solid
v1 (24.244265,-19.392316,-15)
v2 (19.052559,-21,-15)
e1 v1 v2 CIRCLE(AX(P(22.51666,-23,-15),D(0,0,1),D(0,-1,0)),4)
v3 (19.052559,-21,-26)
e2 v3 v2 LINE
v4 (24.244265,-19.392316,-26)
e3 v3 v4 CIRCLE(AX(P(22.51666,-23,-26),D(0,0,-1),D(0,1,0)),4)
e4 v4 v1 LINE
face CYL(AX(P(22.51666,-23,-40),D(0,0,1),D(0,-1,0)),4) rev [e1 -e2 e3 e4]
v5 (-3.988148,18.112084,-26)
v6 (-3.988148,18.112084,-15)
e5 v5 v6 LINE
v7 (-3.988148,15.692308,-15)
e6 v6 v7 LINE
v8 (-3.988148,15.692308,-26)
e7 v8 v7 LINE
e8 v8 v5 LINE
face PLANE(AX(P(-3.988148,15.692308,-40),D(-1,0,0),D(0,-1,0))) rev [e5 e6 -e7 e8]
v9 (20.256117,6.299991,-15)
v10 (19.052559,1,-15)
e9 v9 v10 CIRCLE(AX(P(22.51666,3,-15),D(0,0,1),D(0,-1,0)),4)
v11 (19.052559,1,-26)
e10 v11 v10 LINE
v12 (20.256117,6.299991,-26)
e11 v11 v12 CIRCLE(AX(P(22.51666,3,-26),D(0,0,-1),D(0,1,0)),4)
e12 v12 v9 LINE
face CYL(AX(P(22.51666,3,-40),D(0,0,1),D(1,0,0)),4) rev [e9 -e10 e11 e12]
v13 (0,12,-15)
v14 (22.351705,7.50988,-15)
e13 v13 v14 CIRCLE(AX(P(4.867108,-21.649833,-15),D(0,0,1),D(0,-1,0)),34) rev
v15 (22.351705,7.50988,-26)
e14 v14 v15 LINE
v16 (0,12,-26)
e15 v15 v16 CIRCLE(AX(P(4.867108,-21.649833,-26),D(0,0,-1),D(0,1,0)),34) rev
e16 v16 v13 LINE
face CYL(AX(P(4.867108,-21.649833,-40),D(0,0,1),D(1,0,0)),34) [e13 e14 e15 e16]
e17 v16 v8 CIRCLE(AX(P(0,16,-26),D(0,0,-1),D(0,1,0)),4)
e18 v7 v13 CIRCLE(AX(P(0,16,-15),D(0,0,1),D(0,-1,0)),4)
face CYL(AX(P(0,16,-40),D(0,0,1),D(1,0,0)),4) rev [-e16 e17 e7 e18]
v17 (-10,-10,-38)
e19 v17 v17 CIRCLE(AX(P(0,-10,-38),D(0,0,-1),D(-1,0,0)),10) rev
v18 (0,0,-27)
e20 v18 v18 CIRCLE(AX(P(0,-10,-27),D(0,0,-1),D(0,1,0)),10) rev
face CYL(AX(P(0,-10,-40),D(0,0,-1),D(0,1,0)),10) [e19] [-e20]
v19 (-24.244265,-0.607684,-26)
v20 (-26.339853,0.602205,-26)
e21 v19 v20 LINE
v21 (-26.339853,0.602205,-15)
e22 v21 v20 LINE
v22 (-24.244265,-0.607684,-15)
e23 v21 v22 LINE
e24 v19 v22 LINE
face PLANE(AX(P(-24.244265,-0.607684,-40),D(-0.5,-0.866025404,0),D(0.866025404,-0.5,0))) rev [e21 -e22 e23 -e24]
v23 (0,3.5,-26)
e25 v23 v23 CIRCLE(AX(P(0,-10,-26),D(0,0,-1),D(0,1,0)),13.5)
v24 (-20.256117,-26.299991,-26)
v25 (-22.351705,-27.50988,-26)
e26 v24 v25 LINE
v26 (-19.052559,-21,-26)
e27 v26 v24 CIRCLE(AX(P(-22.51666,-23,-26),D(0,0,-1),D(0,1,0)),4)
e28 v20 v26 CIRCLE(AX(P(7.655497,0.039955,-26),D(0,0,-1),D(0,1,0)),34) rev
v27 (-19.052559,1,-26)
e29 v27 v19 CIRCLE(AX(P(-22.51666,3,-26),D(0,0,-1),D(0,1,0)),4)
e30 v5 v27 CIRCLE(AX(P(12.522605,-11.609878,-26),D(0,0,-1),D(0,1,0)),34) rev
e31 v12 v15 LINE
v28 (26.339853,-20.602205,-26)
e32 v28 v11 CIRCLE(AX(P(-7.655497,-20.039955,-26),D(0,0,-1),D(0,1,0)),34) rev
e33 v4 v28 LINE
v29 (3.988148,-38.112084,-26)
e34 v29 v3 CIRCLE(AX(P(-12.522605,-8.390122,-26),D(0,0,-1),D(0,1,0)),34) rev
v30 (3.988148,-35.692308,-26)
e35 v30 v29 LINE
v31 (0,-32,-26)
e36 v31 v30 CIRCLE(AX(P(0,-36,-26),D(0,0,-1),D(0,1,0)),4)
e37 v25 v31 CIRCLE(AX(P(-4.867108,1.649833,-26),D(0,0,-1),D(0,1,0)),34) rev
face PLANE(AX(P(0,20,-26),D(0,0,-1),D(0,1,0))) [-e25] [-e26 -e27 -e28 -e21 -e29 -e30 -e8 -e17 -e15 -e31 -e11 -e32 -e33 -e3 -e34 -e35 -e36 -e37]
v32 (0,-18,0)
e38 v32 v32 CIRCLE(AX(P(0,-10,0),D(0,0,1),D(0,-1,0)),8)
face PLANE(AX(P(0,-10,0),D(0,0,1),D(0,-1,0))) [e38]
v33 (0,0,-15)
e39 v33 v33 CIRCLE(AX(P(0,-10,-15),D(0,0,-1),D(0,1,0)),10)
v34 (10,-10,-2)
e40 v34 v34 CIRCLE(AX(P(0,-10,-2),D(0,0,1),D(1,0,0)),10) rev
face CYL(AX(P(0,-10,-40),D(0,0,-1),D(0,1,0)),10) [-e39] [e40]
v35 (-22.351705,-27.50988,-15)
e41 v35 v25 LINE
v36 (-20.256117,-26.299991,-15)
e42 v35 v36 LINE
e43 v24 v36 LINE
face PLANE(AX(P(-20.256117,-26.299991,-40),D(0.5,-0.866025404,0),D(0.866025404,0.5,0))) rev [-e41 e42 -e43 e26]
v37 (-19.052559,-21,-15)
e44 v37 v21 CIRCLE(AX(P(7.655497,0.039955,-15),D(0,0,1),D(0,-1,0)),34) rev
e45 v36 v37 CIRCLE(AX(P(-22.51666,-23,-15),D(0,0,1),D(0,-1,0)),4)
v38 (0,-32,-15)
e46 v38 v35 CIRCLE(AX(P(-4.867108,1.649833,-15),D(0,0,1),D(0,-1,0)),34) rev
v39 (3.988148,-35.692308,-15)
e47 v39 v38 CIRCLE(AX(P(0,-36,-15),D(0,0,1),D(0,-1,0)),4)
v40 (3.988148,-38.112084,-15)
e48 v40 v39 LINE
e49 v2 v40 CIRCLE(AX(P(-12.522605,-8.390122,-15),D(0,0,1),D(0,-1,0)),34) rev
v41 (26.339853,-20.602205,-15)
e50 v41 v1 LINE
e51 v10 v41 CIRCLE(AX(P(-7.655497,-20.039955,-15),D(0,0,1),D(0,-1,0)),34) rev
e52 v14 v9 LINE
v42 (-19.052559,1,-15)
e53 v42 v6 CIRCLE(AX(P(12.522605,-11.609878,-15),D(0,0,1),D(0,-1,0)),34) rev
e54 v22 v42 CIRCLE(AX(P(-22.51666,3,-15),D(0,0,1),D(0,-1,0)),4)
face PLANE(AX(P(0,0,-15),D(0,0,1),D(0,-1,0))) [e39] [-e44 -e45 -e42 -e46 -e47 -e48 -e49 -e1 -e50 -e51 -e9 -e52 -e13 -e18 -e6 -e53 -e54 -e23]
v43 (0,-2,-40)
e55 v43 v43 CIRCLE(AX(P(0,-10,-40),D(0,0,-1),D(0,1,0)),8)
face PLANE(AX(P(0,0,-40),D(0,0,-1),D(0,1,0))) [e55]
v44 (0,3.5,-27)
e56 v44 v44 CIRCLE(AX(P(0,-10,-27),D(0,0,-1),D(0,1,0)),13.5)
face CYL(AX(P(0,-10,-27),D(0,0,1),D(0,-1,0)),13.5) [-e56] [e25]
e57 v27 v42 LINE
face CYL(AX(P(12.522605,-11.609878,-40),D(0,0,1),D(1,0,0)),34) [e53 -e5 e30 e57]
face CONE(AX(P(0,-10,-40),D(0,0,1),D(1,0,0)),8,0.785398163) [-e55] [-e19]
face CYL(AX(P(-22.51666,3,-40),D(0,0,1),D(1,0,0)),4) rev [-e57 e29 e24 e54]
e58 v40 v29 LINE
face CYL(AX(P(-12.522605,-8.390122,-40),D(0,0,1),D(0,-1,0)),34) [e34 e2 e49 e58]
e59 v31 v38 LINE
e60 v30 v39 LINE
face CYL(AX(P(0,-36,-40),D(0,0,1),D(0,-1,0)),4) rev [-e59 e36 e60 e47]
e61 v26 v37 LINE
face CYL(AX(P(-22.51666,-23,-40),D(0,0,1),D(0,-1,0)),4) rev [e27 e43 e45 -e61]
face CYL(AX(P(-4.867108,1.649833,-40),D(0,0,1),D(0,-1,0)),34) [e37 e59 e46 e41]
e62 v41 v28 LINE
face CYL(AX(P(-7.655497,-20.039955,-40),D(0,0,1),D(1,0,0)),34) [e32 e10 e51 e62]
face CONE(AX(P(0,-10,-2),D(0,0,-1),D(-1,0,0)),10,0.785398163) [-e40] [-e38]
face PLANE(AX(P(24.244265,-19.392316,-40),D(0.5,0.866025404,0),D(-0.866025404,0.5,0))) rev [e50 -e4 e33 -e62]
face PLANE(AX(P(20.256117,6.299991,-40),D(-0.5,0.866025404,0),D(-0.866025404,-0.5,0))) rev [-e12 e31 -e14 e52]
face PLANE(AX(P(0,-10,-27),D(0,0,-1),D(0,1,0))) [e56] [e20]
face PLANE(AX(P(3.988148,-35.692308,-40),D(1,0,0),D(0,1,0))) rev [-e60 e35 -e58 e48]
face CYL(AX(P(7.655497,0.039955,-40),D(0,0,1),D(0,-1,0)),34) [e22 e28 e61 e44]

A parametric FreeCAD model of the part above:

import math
import FreeCAD as App
import Part
import Sketcher
from FreeCAD import Vector


def edges_at(feature, points):
    """Names of the edges that pass closest to the given points."""
    edges = feature.Shape.Edges
    near = lambda p: min(range(len(edges)), key=lambda i: edges[i].distToShape(Part.Vertex(*p))[0])
    return sorted({f"Edge{near(p) + 1}" for p in points})


def add_polygon(sketch, points):
    """Adds a closed chain of lines whose ends are joined by coincident constraints."""
    first, n = sketch.GeometryCount, len(points)
    for a, b in zip(points, points[1:] + points[:1]):
        sketch.addGeometry(Part.LineSegment(App.Vector(*a, 0), App.Vector(*b, 0)), False)
    for i in range(n):
        sketch.addConstraint(Sketcher.Constraint("Coincident", first + i, 2, first + (i + 1) % n, 1))

doc = App.newDocument("Part")
body = doc.addObject("PartDesign::Body", "Body")

# Sketch on YZ plane
sketch1 = body.newObject("Sketcher::SketchObject", "Sketch")
sketch1.AttachmentSupport = (doc.getObject("YZ_Plane"), [""])
sketch1.MapMode = "FlatFace"
add_polygon(sketch1, [(0, -15), (0, 0), (-10, 0), (-10, -40), (0, -40), (0, -26), (20, -26), (20, -15)])  # lines 0-7
sketch1.addGeometry(Part.LineSegment(Vector(-10, -40, 0), Vector(-10, 0, 0)), True)  # axis
sketch1.addConstraint([
    Sketcher.Constraint("Vertical", 0),
    Sketcher.Constraint("Horizontal", 1),
    Sketcher.Constraint("Vertical", 2),
    Sketcher.Constraint("Horizontal", 3),
    Sketcher.Constraint("Vertical", 4),
    Sketcher.Constraint("Horizontal", 5),
    Sketcher.Constraint("Vertical", 6),
    Sketcher.Constraint("Horizontal", 7),
    Sketcher.Constraint("Vertical", 8),
    Sketcher.Constraint("Coincident", 0, 2, -1, 1),
    Sketcher.Constraint("Coincident", 8, 1, 2, 2),
    Sketcher.Constraint("PointOnObject", 3, 2, -2),
    Sketcher.Constraint("PointOnObject", 8, 2, -1),
    Sketcher.Constraint("DistanceX", 1, 2, 1, 1, 10.0),
    Sketcher.Constraint("DistanceX", 5, 1, 5, 2, 20.0),
    Sketcher.Constraint("DistanceY", 0, 1, 0, 2, 15.0),
    Sketcher.Constraint("DistanceY", 2, 2, 2, 1, 40.0),
    Sketcher.Constraint("DistanceY", 4, 1, 4, 2, 14.0),
])
revolution = body.newObject("PartDesign::Revolution", "Revolution")
revolution.Profile = sketch1
revolution.ReferenceAxis = (sketch1, ["Axis0"])
revolution.Angle = 360

# Sketch on XY plane
sketch2 = body.newObject("Sketcher::SketchObject", "Sketch001")
sketch2.AttachmentSupport = (doc.getObject("XY_Plane"), [""])
sketch2.MapMode = "FlatFace"
sketch2.AttachmentOffset = App.Placement(Vector(0, 0, -26), App.Rotation())
sketch2.addGeometry(Part.Circle(Vector(0, -10, 0), Vector(0, 0, 1), 13.5), False)
sketch2.addConstraint([
    Sketcher.Constraint("PointOnObject", 0, 3, -2),
    Sketcher.Constraint("Diameter", 0, 27.0),
    Sketcher.Constraint("DistanceY", 0, 3, -1, 1, 10.0),
])
pad1 = body.newObject("PartDesign::Pad", "Pad")
pad1.Profile = sketch2
pad1.Length = 1
pad1.Reversed = True
doc.recompute()

chamfer = body.newObject("PartDesign::Chamfer", "Chamfer")
chamfer.Base = (pad1, edges_at(pad1, [(0, -20, -40), (0, -20, 0)]))
chamfer.Size = 2

# Sketch on XY plane
sketch3 = body.newObject("Sketcher::SketchObject", "Sketch002")
sketch3.AttachmentSupport = (doc.getObject("XY_Plane"), [""])
sketch3.MapMode = "FlatFace"
sketch3.addGeometry([
    Part.LineSegment(Vector(-3.988148, 19.73373, 0), Vector(-3.988148, 15.692308, 0)),
    Part.ArcOfCircle(Part.Circle(Vector(0, 16, 0), Vector(0, 0, 1), 4), math.radians(-175.588274), math.radians(-90)),
    Part.ArcOfCircle(Part.Circle(Vector(4.867108, -21.649833, 0), Vector(0, 0, 1), 34), math.radians(51.611547), math.radians(98.230178)),
    Part.ArcOfCircle(Part.Circle(Vector(0, -10, 0), Vector(0, 0, 1), 30), math.radians(30), math.radians(97.639417)),
], False)
sketch3.addConstraint([
    Sketcher.Constraint("Coincident", 0, 2, 1, 1),
    Sketcher.Constraint("Coincident", 1, 2, 2, 2),
    Sketcher.Constraint("Coincident", 2, 1, 3, 1),
    Sketcher.Constraint("Coincident", 3, 2, 0, 1),
    Sketcher.Constraint("Vertical", 0),
    Sketcher.Constraint("PointOnObject", 1, 3, -2),
    Sketcher.Constraint("PointOnObject", 3, 3, -2),
    Sketcher.Constraint("PointOnObject", 1, 2, -2),
    Sketcher.Constraint("Radius", 1, 4.0),
    Sketcher.Constraint("Radius", 2, 34.0),
    Sketcher.Constraint("Radius", 3, 30.0),
    Sketcher.Constraint("DistanceY", -1, 1, 1, 3, 16.0),
    Sketcher.Constraint("DistanceY", 3, 3, -1, 1, 10.0),
    Sketcher.Constraint("DistanceY", -1, 1, 2, 1, 5.0),
    Sketcher.Constraint("DistanceY", 0, 2, 0, 1, 4.041422),
])
pocket1 = body.newObject("PartDesign::Pocket", "Pocket")
pocket1.Profile = sketch3
pocket1.Type = "ThroughAll"
doc.recompute()

datumline = body.newObject("PartDesign::Line", "DatumLine")
datumline.Placement = App.Placement(Vector(0, -10, 0), App.Rotation(Vector(0, 0, 1), Vector(0, 0, 1)))
polarpattern = body.newObject("PartDesign::PolarPattern", "PolarPattern")
polarpattern.Originals = [pocket1]
polarpattern.Axis = (datumline, [""])
polarpattern.Angle = 360
polarpattern.Occurrences = 6
body.Tip = polarpattern

doc.recompute()
